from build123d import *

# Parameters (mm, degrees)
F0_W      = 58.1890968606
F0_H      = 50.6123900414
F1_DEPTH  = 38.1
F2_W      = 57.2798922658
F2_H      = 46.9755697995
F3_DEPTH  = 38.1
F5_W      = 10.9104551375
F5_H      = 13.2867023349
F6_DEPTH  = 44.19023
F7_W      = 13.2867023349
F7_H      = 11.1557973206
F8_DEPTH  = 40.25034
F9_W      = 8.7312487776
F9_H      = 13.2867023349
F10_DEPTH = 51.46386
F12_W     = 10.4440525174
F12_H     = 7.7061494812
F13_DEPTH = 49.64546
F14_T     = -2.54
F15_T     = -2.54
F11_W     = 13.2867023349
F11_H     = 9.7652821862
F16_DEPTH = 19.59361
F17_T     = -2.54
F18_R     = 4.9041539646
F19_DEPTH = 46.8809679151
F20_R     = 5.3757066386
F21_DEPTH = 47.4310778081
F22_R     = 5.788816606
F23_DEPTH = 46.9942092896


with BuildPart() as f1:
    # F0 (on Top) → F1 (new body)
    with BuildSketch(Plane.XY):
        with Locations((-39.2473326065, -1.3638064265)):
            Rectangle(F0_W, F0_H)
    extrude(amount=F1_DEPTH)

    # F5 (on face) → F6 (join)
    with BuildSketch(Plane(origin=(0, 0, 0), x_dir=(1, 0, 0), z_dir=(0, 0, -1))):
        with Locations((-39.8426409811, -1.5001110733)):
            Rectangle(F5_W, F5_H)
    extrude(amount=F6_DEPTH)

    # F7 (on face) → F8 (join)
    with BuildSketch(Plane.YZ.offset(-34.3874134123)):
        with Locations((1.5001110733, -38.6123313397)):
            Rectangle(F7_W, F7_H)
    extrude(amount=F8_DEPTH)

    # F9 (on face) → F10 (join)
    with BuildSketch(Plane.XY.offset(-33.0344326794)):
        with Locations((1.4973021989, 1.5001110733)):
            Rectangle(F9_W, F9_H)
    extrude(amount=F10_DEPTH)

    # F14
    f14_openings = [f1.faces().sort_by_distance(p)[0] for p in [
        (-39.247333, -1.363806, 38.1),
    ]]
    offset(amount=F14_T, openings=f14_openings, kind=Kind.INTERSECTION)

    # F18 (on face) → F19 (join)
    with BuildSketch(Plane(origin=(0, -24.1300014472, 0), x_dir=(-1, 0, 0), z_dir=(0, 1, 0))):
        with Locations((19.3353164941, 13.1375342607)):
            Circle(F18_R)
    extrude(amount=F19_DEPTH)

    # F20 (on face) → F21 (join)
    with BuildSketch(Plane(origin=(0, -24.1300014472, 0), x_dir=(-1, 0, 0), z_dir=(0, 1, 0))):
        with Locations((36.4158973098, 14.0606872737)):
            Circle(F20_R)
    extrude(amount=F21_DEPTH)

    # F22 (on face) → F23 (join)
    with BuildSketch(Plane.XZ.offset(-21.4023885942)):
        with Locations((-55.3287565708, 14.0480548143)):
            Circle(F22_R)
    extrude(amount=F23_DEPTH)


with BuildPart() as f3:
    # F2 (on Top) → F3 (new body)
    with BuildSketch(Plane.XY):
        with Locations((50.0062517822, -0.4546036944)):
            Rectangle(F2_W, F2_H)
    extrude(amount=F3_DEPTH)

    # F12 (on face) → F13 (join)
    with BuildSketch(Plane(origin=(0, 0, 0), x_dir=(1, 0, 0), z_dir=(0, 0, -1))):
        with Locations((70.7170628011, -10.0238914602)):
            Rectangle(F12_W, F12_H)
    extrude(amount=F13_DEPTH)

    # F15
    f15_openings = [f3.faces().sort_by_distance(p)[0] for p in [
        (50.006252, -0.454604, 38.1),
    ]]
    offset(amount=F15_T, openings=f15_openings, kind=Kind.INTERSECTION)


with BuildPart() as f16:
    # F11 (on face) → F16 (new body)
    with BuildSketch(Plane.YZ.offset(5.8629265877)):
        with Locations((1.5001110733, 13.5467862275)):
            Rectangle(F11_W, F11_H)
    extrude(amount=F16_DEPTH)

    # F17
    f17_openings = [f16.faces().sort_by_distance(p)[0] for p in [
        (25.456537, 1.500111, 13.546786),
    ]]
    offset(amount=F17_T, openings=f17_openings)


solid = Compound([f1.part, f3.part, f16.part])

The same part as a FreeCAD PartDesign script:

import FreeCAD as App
import Part
import Sketcher
from FreeCAD import Vector
Q = App.Units.Quantity


def faces_at(feature, points):
    """Names of the faces that lie closest to the given points."""
    faces = feature.Shape.Faces
    near = lambda p: min(range(len(faces)), key=lambda i: faces[i].distToShape(Part.Vertex(*p))[0])
    return sorted({f"Face{near(p) + 1}" for p in points})

doc = App.newDocument("Part")
body = doc.addObject("PartDesign::Body", "Body")

sketch1 = doc.addObject("Sketcher::SketchObject", "Sketch")
body.addObject(sketch1)
sketch1.AttachmentSupport = (doc.XY_Plane, [""])
sketch1.MapMode = "FlatFace"
sketch1.addGeometry([
    Part.LineSegment(Vector(-68.341881, 23.942389, 0), Vector(-68.341881, -26.670001, 0)),
    Part.LineSegment(Vector(-68.341881, -26.670001, 0), Vector(-10.152784, -26.670001, 0)),
    Part.LineSegment(Vector(-10.152784, -26.670001, 0), Vector(-10.152784, 23.942389, 0)),
    Part.LineSegment(Vector(-10.152784, 23.942389, 0), Vector(-68.341881, 23.942389, 0)),
], False)
sketch1.addConstraint([
    Sketcher.Constraint("Coincident", 0, 2, 1, 1),
    Sketcher.Constraint("Coincident", 1, 2, 2, 1),
    Sketcher.Constraint("Coincident", 2, 2, 3, 1),
    Sketcher.Constraint("Coincident", 3, 2, 0, 1),
    Sketcher.Constraint("Vertical", 0),
    Sketcher.Constraint("Horizontal", 1),
    Sketcher.Constraint("Vertical", 2),
    Sketcher.Constraint("Horizontal", 3),
    Sketcher.Constraint("DistanceY", 0, 2, -1, 1, Q("1.0500001 in")),
    Sketcher.Constraint("DistanceY", 0, 2, 0, 1, Q("50.61239 mm")),
    Sketcher.Constraint("DistanceX", 1, 1, 1, 2, Q("58.189097 mm")),
    Sketcher.Constraint("DistanceX", 0, 2, -1, 1, Q("68.341881 mm")),
])
pad1 = doc.addObject("PartDesign::Pad", "Pad")
body.addObject(pad1)
pad1.Profile = sketch1
pad1.Length = Q("1.5 in")

sketch2 = doc.addObject("Sketcher::SketchObject", "Sketch001")
body.addObject(sketch2)
sketch2.AttachmentSupport = (doc.XY_Plane, [""])
sketch2.MapMode = "FlatFace"
sketch2.addGeometry([
    Part.LineSegment(Vector(-45.297869, -5.14324, 0), Vector(-45.297869, 8.143462, 0)),
    Part.LineSegment(Vector(-45.297869, 8.143462, 0), Vector(-34.387413, 8.143462, 0)),
    Part.LineSegment(Vector(-34.387413, 8.143462, 0), Vector(-34.387413, -5.14324, 0)),
    Part.LineSegment(Vector(-34.387413, -5.14324, 0), Vector(-45.297869, -5.14324, 0)),
], False)
sketch2.addConstraint([
    Sketcher.Constraint("Coincident", 0, 2, 1, 1),
    Sketcher.Constraint("Coincident", 1, 2, 2, 1),
    Sketcher.Constraint("Coincident", 2, 2, 3, 1),
    Sketcher.Constraint("Coincident", 3, 2, 0, 1),
    Sketcher.Constraint("Vertical", 0),
    Sketcher.Constraint("Horizontal", 1),
    Sketcher.Constraint("Vertical", 2),
    Sketcher.Constraint("Horizontal", 3),
    Sketcher.Constraint("DistanceX", 1, 1, 1, 2, Q("10.910455 mm")),
    Sketcher.Constraint("DistanceY", 0, 1, 0, 2, Q("13.286702 mm")),
    Sketcher.Constraint("DistanceX", 0, 2, -1, 1, Q("45.297869 mm")),
    Sketcher.Constraint("DistanceY", 2, 2, -1, 1, Q("5.14324 mm")),
])
pad2 = doc.addObject("PartDesign::Pad", "Pad001")
body.addObject(pad2)
pad2.Profile = sketch2
pad2.Length = 44.19023
pad2.Reversed = True

sketch3 = doc.addObject("Sketcher::SketchObject", "Sketch002")
body.addObject(sketch3)
sketch3.AttachmentSupport = (doc.YZ_Plane, [""])
sketch3.MapMode = "FlatFace"
sketch3.AttachmentOffset = App.Placement(Vector(0, 0, -34.387413), App.Rotation())
sketch3.addGeometry([
    Part.LineSegment(Vector(-5.14324, -33.034433, 0), Vector(-5.14324, -44.19023, 0)),
    Part.LineSegment(Vector(-5.14324, -44.19023, 0), Vector(8.143462, -44.19023, 0)),
    Part.LineSegment(Vector(8.143462, -44.19023, 0), Vector(8.143462, -33.034433, 0)),
    Part.LineSegment(Vector(8.143462, -33.034433, 0), Vector(-5.14324, -33.034433, 0)),
], False)
sketch3.addConstraint([
    Sketcher.Constraint("Coincident", 0, 2, 1, 1),
    Sketcher.Constraint("Coincident", 1, 2, 2, 1),
    Sketcher.Constraint("Coincident", 2, 2, 3, 1),
    Sketcher.Constraint("Coincident", 3, 2, 0, 1),
    Sketcher.Constraint("Vertical", 0),
    Sketcher.Constraint("Horizontal", 1),
    Sketcher.Constraint("Vertical", 2),
    Sketcher.Constraint("Horizontal", 3),
    Sketcher.Constraint("DistanceX", 1, 1, 1, 2, Q("13.286702 mm")),
    Sketcher.Constraint("DistanceY", 0, 2, 0, 1, Q("11.155797 mm")),
    Sketcher.Constraint("DistanceX", 0, 2, -1, 1, Q("5.14324 mm")),
    Sketcher.Constraint("DistanceY", 0, 2, -1, 1, Q("44.19023 mm")),
])
pad3 = doc.addObject("PartDesign::Pad", "Pad002")
body.addObject(pad3)
pad3.Profile = sketch3
pad3.Length = 40.25034

sketch4 = doc.addObject("Sketcher::SketchObject", "Sketch003")
body.addObject(sketch4)
sketch4.AttachmentSupport = (doc.XY_Plane, [""])
sketch4.MapMode = "FlatFace"
sketch4.AttachmentOffset = App.Placement(Vector(0, 0, -33.034433), App.Rotation())
sketch4.addGeometry([
    Part.LineSegment(Vector(-2.868322, 8.143462, 0), Vector(-2.868322, -5.14324, 0)),
    Part.LineSegment(Vector(-2.868322, -5.14324, 0), Vector(5.862927, -5.14324, 0)),
    Part.LineSegment(Vector(5.862927, -5.14324, 0), Vector(5.862927, 8.143462, 0)),
    Part.LineSegment(Vector(5.862927, 8.143462, 0), Vector(-2.868322, 8.143462, 0)),
], False)
sketch4.addConstraint([
    Sketcher.Constraint("Coincident", 0, 2, 1, 1),
    Sketcher.Constraint("Coincident", 1, 2, 2, 1),
    Sketcher.Constraint("Coincident", 2, 2, 3, 1),
    Sketcher.Constraint("Coincident", 3, 2, 0, 1),
    Sketcher.Constraint("Vertical", 0),
    Sketcher.Constraint("Horizontal", 1),
    Sketcher.Constraint("Vertical", 2),
    Sketcher.Constraint("Horizontal", 3),
    Sketcher.Constraint("DistanceX", 1, 1, 1, 2, Q("0.34375 in")),
    Sketcher.Constraint("DistanceY", 0, 2, 0, 1, Q("13.286702 mm")),
    Sketcher.Constraint("DistanceY", 0, 2, -1, 1, Q("5.14324 mm")),
    Sketcher.Constraint("DistanceX", 0, 2, -1, 1, Q("2.868322 mm")),
])
pad4 = doc.addObject("PartDesign::Pad", "Pad003")
body.addObject(pad4)
pad4.Profile = sketch4
pad4.Length = 51.46386
doc.recompute()

thickness = doc.addObject("PartDesign::Thickness", "Thickness")
body.addObject(thickness)
thickness.Base = (pad4, faces_at(pad4, [(-39.247, -1.364, 38.1)]))
thickness.Value = Q("0.1 in")
thickness.Reversed = True
thickness.Join = "Intersection"

sketch5 = doc.addObject("Sketcher::SketchObject", "Sketch004")
body.addObject(sketch5)
sketch5.AttachmentSupport = (doc.XZ_Plane, [""])
sketch5.MapMode = "FlatFace"
sketch5.AttachmentOffset = App.Placement(Vector(0, 0, 0.9500001 * 25.4), App.Rotation())
sketch5.addGeometry(Part.Circle(Vector(-19.335316, 13.137534, 0), Vector(0, 0, 1), 4.904154), False)
sketch5.addConstraint([
    Sketcher.Constraint("Diameter", 0, Q("9.808308 mm")),
    Sketcher.Constraint("DistanceX", 0, 3, -1, 1, Q("19.335316 mm")),
    Sketcher.Constraint("DistanceY", -1, 1, 0, 3, Q("13.137534 mm")),
])
pad5 = doc.addObject("PartDesign::Pad", "Pad004")
body.addObject(pad5)
pad5.Profile = sketch5
pad5.Length = 46.880968
pad5.Reversed = True

sketch6 = doc.addObject("Sketcher::SketchObject", "Sketch005")
body.addObject(sketch6)
sketch6.AttachmentSupport = (doc.XZ_Plane, [""])
sketch6.MapMode = "FlatFace"
sketch6.AttachmentOffset = App.Placement(Vector(0, 0, 0.9500001 * 25.4), App.Rotation())
sketch6.addGeometry(Part.Circle(Vector(-36.415897, 14.060687, 0), Vector(0, 0, 1), 5.375707), False)
sketch6.addConstraint([
    Sketcher.Constraint("Diameter", 0, Q("10.751413 mm")),
    Sketcher.Constraint("DistanceX", 0, 3, -1, 1, Q("36.415897 mm")),
    Sketcher.Constraint("DistanceY", -1, 1, 0, 3, Q("14.060687 mm")),
])
pad6 = doc.addObject("PartDesign::Pad", "Pad005")
body.addObject(pad6)
pad6.Profile = sketch6
pad6.Length = 47.431078
pad6.Reversed = True

sketch7 = doc.addObject("Sketcher::SketchObject", "Sketch006")
body.addObject(sketch7)
sketch7.AttachmentSupport = (doc.XZ_Plane, [""])
sketch7.MapMode = "FlatFace"
sketch7.AttachmentOffset = App.Placement(Vector(0, 0, -21.402389), App.Rotation())
sketch7.addGeometry(Part.Circle(Vector(-55.328757, 14.048055, 0), Vector(0, 0, 1), 5.788817), False)
sketch7.addConstraint([
    Sketcher.Constraint("Diameter", 0, Q("11.577633 mm")),
    Sketcher.Constraint("DistanceX", 0, 3, -1, 1, Q("55.328757 mm")),
    Sketcher.Constraint("DistanceY", -1, 1, 0, 3, Q("14.048055 mm")),
])
pad7 = doc.addObject("PartDesign::Pad", "Pad006")
body.addObject(pad7)
pad7.Profile = sketch7
pad7.Length = 46.994209
body2 = doc.addObject("PartDesign::Body", "Body001")

sketch8 = doc.addObject("Sketcher::SketchObject", "Sketch007")
body2.addObject(sketch8)
sketch8.AttachmentSupport = (doc.getObject("XY_Plane001"), [""])
sketch8.MapMode = "FlatFace"
sketch8.addGeometry([
    Part.LineSegment(Vector(21.366306, 23.033181, 0), Vector(21.366306, -23.942389, 0)),
    Part.LineSegment(Vector(21.366306, -23.942389, 0), Vector(78.646198, -23.942389, 0)),
    Part.LineSegment(Vector(78.646198, -23.942389, 0), Vector(78.646198, 23.033181, 0)),
    Part.LineSegment(Vector(78.646198, 23.033181, 0), Vector(21.366306, 23.033181, 0)),
], False)
sketch8.addConstraint([
    Sketcher.Constraint("Coincident", 0, 2, 1, 1),
    Sketcher.Constraint("Coincident", 1, 2, 2, 1),
    Sketcher.Constraint("Coincident", 2, 2, 3, 1),
    Sketcher.Constraint("Coincident", 3, 2, 0, 1),
    Sketcher.Constraint("Vertical", 0),
    Sketcher.Constraint("Horizontal", 1),
    Sketcher.Constraint("Vertical", 2),
    Sketcher.Constraint("Horizontal", 3),
    Sketcher.Constraint("DistanceY", 0, 2, 0, 1, Q("46.97557 mm")),
    Sketcher.Constraint("DistanceX", 1, 1, 1, 2, Q("57.279892 mm")),
    Sketcher.Constraint("DistanceY", 0, 2, -1, 1, Q("23.942389 mm")),
    Sketcher.Constraint("DistanceX", -1, 1, 0, 2, Q("21.366306 mm")),
])
pad8 = doc.addObject("PartDesign::Pad", "Pad007")
body2.addObject(pad8)
pad8.Profile = sketch8
pad8.Length = Q("1.5 in")

sketch9 = doc.addObject("Sketcher::SketchObject", "Sketch008")
body2.addObject(sketch9)
sketch9.AttachmentSupport = (doc.getObject("XY_Plane001"), [""])
sketch9.MapMode = "FlatFace"
sketch9.addGeometry([
    Part.LineSegment(Vector(65.495037, 6.170817, 0), Vector(65.495037, 13.876966, 0)),
    Part.LineSegment(Vector(65.495037, 13.876966, 0), Vector(75.939089, 13.876966, 0)),
    Part.LineSegment(Vector(75.939089, 13.876966, 0), Vector(75.939089, 6.170817, 0)),
    Part.LineSegment(Vector(75.939089, 6.170817, 0), Vector(65.495037, 6.170817, 0)),
], False)
sketch9.addConstraint([
    Sketcher.Constraint("Coincident", 0, 2, 1, 1),
    Sketcher.Constraint("Coincident", 1, 2, 2, 1),
    Sketcher.Constraint("Coincident", 2, 2, 3, 1),
    Sketcher.Constraint("Coincident", 3, 2, 0, 1),
    Sketcher.Constraint("Vertical", 0),
    Sketcher.Constraint("Horizontal", 1),
    Sketcher.Constraint("Vertical", 2),
    Sketcher.Constraint("Horizontal", 3),
    Sketcher.Constraint("DistanceY", 0, 1, 0, 2, Q("7.706149 mm")),
    Sketcher.Constraint("DistanceX", 1, 1, 1, 2, Q("10.444053 mm")),
    Sketcher.Constraint("DistanceX", -1, 1, 1, 2, Q("75.939089 mm")),
    Sketcher.Constraint("DistanceY", -1, 1, 0, 2, Q("13.876966 mm")),
])
pad9 = doc.addObject("PartDesign::Pad", "Pad008")
body2.addObject(pad9)
pad9.Profile = sketch9
pad9.Length = 49.64546
pad9.Reversed = True
doc.recompute()

thickness2 = doc.addObject("PartDesign::Thickness", "Thickness001")
body2.addObject(thickness2)
thickness2.Base = (pad9, faces_at(pad9, [(50.006, -0.455, 38.1)]))
thickness2.Value = Q("0.1 in")
thickness2.Reversed = True
thickness2.Join = "Intersection"
body3 = doc.addObject("PartDesign::Body", "Body002")

sketch10 = doc.addObject("Sketcher::SketchObject", "Sketch009")
body3.addObject(sketch10)
sketch10.AttachmentSupport = (doc.getObject("YZ_Plane002"), [""])
sketch10.MapMode = "FlatFace"
sketch10.AttachmentOffset = App.Placement(Vector(0, 0, 5.862927), App.Rotation())
sketch10.addGeometry([
    Part.LineSegment(Vector(-5.14324, 18.429427, 0), Vector(-5.14324, 8.664145, 0)),
    Part.LineSegment(Vector(-5.14324, 8.664145, 0), Vector(8.143462, 8.664145, 0)),
    Part.LineSegment(Vector(8.143462, 8.664145, 0), Vector(8.143462, 18.429427, 0)),
    Part.LineSegment(Vector(8.143462, 18.429427, 0), Vector(-5.14324, 18.429427, 0)),
], False)
sketch10.addConstraint([
    Sketcher.Constraint("Coincident", 0, 2, 1, 1),
    Sketcher.Constraint("Coincident", 1, 2, 2, 1),
    Sketcher.Constraint("Coincident", 2, 2, 3, 1),
    Sketcher.Constraint("Coincident", 3, 2, 0, 1),
    Sketcher.Constraint("Vertical", 0),
    Sketcher.Constraint("Horizontal", 1),
    Sketcher.Constraint("Vertical", 2),
    Sketcher.Constraint("Horizontal", 3),
    Sketcher.Constraint("DistanceX", 1, 1, 1, 2, Q("13.286702 mm")),
    Sketcher.Constraint("DistanceY", 0, 2, 0, 1, Q("9.765282 mm")),
    Sketcher.Constraint("DistanceX", 0, 2, -1, 1, Q("5.14324 mm")),
    Sketcher.Constraint("DistanceY", -1, 1, 0, 2, Q("8.664145 mm")),
])
pad10 = doc.addObject("PartDesign::Pad", "Pad009")
body3.addObject(pad10)
pad10.Profile = sketch10
pad10.Length = 19.59361
doc.recompute()

thickness3 = doc.addObject("PartDesign::Thickness", "Thickness002")
body3.addObject(thickness3)
thickness3.Base = (pad10, faces_at(pad10, [(25.457, 1.5, 13.547)]))
thickness3.Value = Q("0.1 in")
thickness3.Reversed = True
thickness3.Join = "Arc"

doc.recompute()
